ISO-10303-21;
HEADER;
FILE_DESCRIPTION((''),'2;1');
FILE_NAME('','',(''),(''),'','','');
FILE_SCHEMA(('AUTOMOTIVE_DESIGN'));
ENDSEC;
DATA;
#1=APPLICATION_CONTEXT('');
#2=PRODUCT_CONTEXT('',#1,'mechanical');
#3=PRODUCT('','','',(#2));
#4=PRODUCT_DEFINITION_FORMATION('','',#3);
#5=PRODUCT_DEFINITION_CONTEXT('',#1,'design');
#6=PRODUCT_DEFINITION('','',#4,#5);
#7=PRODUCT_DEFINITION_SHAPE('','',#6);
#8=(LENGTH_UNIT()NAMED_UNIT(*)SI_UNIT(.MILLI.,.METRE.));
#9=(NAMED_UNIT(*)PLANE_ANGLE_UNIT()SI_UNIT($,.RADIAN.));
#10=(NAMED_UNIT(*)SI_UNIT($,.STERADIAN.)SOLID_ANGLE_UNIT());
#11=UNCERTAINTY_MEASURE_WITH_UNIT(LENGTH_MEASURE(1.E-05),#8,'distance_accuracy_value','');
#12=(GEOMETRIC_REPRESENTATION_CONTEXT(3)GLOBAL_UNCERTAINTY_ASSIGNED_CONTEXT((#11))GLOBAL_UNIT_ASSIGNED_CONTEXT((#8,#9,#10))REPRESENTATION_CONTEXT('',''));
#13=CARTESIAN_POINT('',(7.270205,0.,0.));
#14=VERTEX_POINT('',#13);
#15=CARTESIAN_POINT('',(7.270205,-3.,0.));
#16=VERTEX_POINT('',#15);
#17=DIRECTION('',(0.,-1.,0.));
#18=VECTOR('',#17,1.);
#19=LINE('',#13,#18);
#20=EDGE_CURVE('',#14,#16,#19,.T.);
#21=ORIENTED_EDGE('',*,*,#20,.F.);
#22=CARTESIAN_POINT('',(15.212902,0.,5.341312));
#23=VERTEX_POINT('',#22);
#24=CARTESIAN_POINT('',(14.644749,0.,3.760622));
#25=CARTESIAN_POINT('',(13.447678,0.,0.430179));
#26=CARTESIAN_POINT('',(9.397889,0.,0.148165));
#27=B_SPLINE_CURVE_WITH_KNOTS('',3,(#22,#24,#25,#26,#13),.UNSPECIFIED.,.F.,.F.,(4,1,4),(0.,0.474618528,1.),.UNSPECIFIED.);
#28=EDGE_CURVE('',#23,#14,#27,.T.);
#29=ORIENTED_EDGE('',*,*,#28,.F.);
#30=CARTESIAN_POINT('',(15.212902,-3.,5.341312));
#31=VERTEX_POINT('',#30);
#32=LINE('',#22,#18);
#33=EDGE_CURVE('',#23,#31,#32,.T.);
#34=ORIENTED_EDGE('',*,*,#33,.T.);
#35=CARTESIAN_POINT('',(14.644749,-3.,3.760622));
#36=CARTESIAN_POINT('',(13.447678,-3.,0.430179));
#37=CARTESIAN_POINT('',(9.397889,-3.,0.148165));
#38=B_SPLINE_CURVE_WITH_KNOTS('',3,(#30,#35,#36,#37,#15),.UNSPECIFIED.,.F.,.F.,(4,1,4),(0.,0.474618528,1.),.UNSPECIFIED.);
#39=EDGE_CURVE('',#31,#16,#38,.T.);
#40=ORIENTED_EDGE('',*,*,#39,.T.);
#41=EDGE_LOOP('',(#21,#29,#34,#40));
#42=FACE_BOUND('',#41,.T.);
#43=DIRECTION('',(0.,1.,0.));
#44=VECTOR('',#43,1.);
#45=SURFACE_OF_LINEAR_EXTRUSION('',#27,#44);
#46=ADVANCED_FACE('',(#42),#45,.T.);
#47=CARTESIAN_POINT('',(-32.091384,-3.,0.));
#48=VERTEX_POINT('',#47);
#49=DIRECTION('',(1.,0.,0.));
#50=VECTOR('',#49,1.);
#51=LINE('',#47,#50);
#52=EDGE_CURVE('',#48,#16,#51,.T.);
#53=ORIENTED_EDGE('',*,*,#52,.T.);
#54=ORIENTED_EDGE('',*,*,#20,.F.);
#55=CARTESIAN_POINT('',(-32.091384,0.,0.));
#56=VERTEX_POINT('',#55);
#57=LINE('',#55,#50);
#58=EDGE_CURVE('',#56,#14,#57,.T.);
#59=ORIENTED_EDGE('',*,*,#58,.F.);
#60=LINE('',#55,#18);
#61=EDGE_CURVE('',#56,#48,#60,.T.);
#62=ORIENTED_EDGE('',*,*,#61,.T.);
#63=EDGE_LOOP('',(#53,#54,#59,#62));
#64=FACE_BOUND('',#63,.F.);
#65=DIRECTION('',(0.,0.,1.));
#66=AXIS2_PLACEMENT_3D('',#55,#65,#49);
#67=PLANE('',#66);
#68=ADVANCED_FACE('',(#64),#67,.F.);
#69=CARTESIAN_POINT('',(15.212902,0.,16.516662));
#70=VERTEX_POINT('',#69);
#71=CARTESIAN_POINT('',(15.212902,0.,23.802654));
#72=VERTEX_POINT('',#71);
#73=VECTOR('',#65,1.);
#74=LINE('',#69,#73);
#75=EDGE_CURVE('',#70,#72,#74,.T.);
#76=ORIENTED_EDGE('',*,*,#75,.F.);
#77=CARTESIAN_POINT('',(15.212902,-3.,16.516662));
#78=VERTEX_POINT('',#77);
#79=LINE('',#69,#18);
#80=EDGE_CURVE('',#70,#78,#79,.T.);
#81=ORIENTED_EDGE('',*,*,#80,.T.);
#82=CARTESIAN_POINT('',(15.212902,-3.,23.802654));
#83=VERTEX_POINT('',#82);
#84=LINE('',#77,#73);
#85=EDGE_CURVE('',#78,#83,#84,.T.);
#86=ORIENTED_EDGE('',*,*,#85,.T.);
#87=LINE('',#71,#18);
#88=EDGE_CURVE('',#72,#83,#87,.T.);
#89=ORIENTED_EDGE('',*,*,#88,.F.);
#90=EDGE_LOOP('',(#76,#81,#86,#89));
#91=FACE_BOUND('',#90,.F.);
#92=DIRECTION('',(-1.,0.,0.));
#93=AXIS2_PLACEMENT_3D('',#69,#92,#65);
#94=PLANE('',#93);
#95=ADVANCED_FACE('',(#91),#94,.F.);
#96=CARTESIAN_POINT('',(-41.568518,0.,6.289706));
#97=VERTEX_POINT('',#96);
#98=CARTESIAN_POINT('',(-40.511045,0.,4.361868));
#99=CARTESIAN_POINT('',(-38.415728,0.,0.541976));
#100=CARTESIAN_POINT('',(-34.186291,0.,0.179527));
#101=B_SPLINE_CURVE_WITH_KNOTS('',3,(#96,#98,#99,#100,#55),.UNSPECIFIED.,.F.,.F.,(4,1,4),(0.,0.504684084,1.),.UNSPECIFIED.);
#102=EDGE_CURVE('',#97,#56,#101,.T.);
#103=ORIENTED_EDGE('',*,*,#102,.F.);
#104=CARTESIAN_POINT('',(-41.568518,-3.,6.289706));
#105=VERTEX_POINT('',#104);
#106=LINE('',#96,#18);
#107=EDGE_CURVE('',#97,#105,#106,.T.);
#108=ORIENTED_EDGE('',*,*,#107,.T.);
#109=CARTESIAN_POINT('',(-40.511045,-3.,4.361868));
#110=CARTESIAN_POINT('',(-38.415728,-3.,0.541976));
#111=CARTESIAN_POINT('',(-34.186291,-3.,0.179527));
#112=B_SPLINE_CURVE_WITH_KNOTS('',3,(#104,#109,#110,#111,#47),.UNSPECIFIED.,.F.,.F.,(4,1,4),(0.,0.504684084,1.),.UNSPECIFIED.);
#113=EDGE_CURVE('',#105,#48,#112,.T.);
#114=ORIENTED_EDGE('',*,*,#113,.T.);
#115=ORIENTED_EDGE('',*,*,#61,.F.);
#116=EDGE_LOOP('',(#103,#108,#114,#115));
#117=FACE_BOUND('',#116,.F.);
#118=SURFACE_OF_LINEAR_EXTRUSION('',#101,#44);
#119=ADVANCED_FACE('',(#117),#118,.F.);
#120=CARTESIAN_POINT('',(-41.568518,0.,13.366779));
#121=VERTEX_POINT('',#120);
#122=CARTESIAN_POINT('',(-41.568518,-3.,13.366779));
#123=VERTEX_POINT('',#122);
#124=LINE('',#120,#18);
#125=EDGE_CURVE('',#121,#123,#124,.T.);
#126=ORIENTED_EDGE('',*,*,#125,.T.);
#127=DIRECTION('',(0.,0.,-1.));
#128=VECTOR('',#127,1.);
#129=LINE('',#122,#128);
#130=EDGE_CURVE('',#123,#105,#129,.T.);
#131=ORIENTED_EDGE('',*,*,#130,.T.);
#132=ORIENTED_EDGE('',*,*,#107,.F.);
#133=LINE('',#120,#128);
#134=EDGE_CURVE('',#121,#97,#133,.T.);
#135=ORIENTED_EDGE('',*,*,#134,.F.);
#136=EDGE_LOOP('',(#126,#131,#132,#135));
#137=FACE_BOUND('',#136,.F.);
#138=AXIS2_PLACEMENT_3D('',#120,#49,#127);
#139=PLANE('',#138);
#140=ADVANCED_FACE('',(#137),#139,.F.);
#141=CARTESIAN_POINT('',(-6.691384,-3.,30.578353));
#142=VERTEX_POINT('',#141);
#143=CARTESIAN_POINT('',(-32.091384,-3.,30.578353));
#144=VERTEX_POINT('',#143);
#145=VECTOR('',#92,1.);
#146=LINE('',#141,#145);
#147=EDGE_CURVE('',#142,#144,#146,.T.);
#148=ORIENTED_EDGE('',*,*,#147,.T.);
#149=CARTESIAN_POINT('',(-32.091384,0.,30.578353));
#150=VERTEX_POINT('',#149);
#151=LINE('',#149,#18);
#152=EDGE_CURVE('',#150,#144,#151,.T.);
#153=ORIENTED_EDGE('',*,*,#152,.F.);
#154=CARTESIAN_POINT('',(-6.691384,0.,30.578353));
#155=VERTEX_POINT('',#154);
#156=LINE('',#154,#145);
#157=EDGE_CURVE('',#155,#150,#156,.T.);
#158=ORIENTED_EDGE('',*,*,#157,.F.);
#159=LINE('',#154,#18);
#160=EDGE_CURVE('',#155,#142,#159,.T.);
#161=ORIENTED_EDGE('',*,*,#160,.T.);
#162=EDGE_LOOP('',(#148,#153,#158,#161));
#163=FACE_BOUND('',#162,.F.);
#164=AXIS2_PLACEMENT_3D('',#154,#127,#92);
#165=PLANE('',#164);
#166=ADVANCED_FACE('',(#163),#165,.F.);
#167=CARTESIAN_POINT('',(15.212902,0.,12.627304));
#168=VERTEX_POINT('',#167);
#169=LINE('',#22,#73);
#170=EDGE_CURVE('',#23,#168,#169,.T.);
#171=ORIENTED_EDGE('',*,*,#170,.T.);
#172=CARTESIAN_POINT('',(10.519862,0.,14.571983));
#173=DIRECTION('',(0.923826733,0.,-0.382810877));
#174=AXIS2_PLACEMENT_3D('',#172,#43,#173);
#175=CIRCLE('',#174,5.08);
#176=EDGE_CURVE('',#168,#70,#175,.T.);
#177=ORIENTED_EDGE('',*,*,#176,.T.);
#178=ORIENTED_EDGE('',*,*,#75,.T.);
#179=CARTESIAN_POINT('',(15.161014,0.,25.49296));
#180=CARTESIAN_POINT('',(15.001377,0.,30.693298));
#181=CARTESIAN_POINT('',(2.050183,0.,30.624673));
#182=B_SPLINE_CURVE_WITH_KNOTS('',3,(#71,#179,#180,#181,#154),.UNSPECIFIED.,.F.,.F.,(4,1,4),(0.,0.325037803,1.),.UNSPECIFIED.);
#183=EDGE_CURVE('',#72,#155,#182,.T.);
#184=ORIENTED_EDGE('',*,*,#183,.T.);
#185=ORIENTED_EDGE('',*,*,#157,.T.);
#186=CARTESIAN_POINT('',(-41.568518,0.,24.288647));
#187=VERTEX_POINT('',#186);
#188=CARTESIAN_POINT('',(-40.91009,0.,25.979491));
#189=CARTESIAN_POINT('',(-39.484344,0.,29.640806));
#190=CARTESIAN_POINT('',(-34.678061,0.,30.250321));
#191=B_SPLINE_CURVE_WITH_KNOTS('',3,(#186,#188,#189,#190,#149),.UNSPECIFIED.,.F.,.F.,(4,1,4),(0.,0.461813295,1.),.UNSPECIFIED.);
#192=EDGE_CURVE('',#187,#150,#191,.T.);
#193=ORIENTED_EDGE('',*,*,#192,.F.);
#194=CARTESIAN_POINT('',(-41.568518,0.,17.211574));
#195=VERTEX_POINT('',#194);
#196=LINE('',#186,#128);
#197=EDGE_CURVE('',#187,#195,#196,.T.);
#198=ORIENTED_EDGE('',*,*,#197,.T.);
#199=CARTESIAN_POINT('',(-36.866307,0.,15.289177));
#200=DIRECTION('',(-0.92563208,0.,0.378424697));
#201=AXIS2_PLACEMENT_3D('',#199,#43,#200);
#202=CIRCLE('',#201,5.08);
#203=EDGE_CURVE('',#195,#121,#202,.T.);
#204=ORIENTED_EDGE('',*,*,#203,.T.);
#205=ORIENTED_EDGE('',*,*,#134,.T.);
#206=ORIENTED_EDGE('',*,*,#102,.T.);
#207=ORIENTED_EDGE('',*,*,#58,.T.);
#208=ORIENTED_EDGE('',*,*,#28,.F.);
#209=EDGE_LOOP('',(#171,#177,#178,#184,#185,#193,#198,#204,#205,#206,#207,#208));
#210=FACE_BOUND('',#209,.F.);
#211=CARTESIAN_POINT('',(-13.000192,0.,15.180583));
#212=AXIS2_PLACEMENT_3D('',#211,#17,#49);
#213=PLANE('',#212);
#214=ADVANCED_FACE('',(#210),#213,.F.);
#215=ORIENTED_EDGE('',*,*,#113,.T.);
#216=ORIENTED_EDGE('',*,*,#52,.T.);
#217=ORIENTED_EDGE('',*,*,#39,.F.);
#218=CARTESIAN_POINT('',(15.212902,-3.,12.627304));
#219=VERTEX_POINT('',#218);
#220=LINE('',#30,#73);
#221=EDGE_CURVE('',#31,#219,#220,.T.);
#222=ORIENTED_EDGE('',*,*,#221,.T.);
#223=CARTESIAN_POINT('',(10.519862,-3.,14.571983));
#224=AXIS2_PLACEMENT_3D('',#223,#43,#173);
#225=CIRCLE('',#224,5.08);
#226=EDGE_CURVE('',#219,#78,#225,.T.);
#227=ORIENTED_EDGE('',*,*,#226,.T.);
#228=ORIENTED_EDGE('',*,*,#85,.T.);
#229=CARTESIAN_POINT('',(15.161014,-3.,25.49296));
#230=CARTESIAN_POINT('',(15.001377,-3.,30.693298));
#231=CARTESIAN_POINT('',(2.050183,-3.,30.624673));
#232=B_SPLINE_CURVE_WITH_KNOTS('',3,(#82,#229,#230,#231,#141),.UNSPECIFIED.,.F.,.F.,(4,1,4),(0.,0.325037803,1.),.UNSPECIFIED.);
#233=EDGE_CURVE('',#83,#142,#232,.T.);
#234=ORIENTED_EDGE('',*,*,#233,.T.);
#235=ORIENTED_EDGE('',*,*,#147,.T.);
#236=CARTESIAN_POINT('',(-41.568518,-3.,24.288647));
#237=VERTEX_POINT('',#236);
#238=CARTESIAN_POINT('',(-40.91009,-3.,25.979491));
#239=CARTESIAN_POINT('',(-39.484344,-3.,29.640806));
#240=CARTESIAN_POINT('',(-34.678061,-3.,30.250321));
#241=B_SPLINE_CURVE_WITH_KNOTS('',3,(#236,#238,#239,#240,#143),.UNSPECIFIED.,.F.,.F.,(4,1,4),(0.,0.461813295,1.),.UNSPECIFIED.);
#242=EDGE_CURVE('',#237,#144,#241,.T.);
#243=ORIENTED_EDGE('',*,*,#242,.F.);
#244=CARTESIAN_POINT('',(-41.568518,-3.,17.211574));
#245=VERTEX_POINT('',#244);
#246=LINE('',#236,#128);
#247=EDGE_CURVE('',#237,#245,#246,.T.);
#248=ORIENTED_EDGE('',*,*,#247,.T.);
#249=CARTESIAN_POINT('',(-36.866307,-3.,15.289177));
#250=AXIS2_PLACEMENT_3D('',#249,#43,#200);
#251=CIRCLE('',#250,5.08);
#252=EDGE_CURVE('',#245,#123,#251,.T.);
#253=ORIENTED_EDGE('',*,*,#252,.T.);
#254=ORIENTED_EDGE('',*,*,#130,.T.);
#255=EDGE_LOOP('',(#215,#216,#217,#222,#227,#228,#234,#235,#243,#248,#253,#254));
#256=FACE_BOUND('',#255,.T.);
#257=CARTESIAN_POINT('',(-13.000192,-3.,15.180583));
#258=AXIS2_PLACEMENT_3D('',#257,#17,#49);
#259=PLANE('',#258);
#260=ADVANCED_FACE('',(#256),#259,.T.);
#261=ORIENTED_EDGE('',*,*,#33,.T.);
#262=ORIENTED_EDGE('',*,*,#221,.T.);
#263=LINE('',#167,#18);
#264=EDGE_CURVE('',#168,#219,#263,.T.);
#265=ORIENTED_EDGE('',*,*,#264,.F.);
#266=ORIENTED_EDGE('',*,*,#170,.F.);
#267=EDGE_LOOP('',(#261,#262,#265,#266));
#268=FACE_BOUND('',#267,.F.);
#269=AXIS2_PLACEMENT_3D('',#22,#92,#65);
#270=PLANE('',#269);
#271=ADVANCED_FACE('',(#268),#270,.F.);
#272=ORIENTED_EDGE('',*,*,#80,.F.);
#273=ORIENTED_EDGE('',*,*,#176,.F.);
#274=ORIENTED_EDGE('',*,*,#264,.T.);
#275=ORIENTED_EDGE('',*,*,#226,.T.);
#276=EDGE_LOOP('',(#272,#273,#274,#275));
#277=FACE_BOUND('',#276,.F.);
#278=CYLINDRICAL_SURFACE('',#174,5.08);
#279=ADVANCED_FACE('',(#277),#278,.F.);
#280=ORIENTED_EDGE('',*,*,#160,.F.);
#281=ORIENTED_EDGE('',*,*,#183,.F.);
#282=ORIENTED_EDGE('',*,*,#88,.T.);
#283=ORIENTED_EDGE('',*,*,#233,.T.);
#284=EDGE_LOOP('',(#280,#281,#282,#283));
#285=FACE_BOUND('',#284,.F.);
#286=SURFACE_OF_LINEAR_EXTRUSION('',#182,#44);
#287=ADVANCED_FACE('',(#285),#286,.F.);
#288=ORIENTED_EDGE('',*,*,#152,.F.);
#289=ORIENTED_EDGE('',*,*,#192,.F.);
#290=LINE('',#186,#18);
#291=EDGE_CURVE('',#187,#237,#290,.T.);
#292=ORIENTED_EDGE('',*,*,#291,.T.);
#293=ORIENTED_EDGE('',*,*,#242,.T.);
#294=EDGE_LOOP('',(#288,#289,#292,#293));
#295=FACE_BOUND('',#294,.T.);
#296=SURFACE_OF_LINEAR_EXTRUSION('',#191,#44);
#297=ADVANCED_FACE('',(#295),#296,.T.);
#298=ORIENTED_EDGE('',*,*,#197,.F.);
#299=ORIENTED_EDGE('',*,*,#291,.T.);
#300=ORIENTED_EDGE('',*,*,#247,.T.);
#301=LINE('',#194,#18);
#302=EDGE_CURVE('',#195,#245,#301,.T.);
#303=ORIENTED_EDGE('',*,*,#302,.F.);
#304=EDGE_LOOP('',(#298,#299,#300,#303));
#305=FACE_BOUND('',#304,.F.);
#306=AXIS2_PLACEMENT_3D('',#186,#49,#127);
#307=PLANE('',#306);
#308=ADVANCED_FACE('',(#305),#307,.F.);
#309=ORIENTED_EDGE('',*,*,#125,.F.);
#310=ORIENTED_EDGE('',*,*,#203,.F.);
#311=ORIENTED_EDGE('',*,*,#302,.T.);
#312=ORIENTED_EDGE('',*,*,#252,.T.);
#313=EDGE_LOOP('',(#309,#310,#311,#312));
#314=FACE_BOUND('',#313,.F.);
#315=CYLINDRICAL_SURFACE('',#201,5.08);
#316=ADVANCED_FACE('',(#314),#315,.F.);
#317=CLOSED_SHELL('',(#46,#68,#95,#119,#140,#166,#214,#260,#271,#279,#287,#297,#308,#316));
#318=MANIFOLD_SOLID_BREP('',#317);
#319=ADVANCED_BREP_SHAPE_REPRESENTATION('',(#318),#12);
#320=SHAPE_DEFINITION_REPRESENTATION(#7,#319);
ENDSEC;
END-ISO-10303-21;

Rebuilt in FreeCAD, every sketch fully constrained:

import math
import FreeCAD as App
import Part
import Sketcher
from FreeCAD import Vector
Q = App.Units.Quantity

doc = App.newDocument("Part")
body = doc.addObject("PartDesign::Body", "Body")

# Sketch on XZ plane
sketch1 = body.newObject("Sketcher::SketchObject", "Sketch")
sketch1.AttachmentSupport = (doc.getObject("XZ_Plane"), [""])
sketch1.MapMode = "FlatFace"
sketch1.addGeometry([
    Part.ArcOfCircle(Part.Circle(Vector(-36.866307, 15.289177, 0), Vector(0, 0, 1), 5.08), math.radians(-157.763861), math.radians(157.763861)),  # 0
    Part.LineSegment(Vector(-41.568518, 13.366779, 0), Vector(-41.568518, 6.289706, 0)),  # 1
    Part.BSplineCurve([Vector(-41.568518, 6.289706, 0), Vector(-40.511045, 4.361868, 0), Vector(-38.415728, 0.541976, 0), Vector(-34.186291, 0.179527, 0), Vector(-32.091384, 0, 0)], [4, 1, 4], [0, 0.504684084, 1], False, 3, [1, 1, 1, 1, 1], False),  # 2
    Part.LineSegment(Vector(-32.091384, 0, 0), Vector(7.270205, 0, 0)),  # 3
    Part.BSplineCurve([Vector(15.212902, 5.341312, 0), Vector(14.644749, 3.760622, 0), Vector(13.447678, 0.430179, 0), Vector(9.397889, 0.148165, 0), Vector(7.270205, 0, 0)], [4, 1, 4], [0, 0.474618528, 1], False, 3, [1, 1, 1, 1, 1], False),  # 4
    Part.LineSegment(Vector(15.212902, 5.341312, 0), Vector(15.212902, 12.627304, 0)),  # 5
    Part.ArcOfCircle(Part.Circle(Vector(10.519862, 14.571983, 0), Vector(0, 0, 1), 5.08), math.radians(22.507904), math.radians(337.492096)),  # 6
    Part.LineSegment(Vector(15.212902, 16.516662, 0), Vector(15.212902, 23.802654, 0)),  # 7
    Part.BSplineCurve([Vector(15.212902, 23.802654, 0), Vector(15.161014, 25.49296, 0), Vector(15.001377, 30.693298, 0), Vector(2.050183, 30.624673, 0), Vector(-6.691384, 30.578353, 0)], [4, 1, 4], [0, 0.325037803, 1], False, 3, [1, 1, 1, 1, 1], False),  # 8
    Part.LineSegment(Vector(-6.691384, 30.578353, 0), Vector(-32.091384, 30.578353, 0)),  # 9
    Part.BSplineCurve([Vector(-41.568518, 24.288647, 0), Vector(-40.91009, 25.979491, 0), Vector(-39.484344, 29.640806, 0), Vector(-34.678061, 30.250321, 0), Vector(-32.091384, 30.578353, 0)], [4, 1, 4], [0, 0.461813295, 1], False, 3, [1, 1, 1, 1, 1], False),  # 10
    Part.LineSegment(Vector(-41.568518, 24.288647, 0), Vector(-41.568518, 17.211574, 0)),  # 11
], False)
sketch1.addConstraint([
    Sketcher.Constraint("Block", 2),
    Sketcher.Constraint("Block", 4),
    Sketcher.Constraint("Block", 8),
    Sketcher.Constraint("Block", 10),
    Sketcher.Constraint("Coincident", 0, 1, 1, 1),
    Sketcher.Constraint("Coincident", 1, 2, 2, 1),
    Sketcher.Constraint("Coincident", 2, 2, 3, 1),
    Sketcher.Constraint("Coincident", 3, 2, 4, 2),
    Sketcher.Constraint("Coincident", 4, 1, 5, 1),
    Sketcher.Constraint("Coincident", 5, 2, 6, 2),
    Sketcher.Constraint("Coincident", 6, 1, 7, 1),
    Sketcher.Constraint("Coincident", 7, 2, 8, 1),
    Sketcher.Constraint("Coincident", 8, 2, 9, 1),
    Sketcher.Constraint("Coincident", 9, 2, 10, 2),
    Sketcher.Constraint("Coincident", 10, 1, 11, 1),
    Sketcher.Constraint("Coincident", 11, 2, 0, 2),
    Sketcher.Constraint("Vertical", 1),
    Sketcher.Constraint("Vertical", 5),
    Sketcher.Constraint("Vertical", 7),
    Sketcher.Constraint("Vertical", 11),
    Sketcher.Constraint("Equal", 0, 6),
    Sketcher.Constraint("Equal", 5, 7),
    Sketcher.Constraint("Equal", 1, 11),
    Sketcher.Constraint("Radius", 0, Q("0.2 in")),
    Sketcher.Constraint("DistanceY", 5, 1, 5, 2, Q("7.285991 mm")),
    Sketcher.Constraint("DistanceY", 1, 2, 1, 1, Q("7.077073 mm")),
])
pad1 = body.newObject("PartDesign::Pad", "Pad")
pad1.Profile = sketch1
pad1.Length = 3

doc.recompute()
